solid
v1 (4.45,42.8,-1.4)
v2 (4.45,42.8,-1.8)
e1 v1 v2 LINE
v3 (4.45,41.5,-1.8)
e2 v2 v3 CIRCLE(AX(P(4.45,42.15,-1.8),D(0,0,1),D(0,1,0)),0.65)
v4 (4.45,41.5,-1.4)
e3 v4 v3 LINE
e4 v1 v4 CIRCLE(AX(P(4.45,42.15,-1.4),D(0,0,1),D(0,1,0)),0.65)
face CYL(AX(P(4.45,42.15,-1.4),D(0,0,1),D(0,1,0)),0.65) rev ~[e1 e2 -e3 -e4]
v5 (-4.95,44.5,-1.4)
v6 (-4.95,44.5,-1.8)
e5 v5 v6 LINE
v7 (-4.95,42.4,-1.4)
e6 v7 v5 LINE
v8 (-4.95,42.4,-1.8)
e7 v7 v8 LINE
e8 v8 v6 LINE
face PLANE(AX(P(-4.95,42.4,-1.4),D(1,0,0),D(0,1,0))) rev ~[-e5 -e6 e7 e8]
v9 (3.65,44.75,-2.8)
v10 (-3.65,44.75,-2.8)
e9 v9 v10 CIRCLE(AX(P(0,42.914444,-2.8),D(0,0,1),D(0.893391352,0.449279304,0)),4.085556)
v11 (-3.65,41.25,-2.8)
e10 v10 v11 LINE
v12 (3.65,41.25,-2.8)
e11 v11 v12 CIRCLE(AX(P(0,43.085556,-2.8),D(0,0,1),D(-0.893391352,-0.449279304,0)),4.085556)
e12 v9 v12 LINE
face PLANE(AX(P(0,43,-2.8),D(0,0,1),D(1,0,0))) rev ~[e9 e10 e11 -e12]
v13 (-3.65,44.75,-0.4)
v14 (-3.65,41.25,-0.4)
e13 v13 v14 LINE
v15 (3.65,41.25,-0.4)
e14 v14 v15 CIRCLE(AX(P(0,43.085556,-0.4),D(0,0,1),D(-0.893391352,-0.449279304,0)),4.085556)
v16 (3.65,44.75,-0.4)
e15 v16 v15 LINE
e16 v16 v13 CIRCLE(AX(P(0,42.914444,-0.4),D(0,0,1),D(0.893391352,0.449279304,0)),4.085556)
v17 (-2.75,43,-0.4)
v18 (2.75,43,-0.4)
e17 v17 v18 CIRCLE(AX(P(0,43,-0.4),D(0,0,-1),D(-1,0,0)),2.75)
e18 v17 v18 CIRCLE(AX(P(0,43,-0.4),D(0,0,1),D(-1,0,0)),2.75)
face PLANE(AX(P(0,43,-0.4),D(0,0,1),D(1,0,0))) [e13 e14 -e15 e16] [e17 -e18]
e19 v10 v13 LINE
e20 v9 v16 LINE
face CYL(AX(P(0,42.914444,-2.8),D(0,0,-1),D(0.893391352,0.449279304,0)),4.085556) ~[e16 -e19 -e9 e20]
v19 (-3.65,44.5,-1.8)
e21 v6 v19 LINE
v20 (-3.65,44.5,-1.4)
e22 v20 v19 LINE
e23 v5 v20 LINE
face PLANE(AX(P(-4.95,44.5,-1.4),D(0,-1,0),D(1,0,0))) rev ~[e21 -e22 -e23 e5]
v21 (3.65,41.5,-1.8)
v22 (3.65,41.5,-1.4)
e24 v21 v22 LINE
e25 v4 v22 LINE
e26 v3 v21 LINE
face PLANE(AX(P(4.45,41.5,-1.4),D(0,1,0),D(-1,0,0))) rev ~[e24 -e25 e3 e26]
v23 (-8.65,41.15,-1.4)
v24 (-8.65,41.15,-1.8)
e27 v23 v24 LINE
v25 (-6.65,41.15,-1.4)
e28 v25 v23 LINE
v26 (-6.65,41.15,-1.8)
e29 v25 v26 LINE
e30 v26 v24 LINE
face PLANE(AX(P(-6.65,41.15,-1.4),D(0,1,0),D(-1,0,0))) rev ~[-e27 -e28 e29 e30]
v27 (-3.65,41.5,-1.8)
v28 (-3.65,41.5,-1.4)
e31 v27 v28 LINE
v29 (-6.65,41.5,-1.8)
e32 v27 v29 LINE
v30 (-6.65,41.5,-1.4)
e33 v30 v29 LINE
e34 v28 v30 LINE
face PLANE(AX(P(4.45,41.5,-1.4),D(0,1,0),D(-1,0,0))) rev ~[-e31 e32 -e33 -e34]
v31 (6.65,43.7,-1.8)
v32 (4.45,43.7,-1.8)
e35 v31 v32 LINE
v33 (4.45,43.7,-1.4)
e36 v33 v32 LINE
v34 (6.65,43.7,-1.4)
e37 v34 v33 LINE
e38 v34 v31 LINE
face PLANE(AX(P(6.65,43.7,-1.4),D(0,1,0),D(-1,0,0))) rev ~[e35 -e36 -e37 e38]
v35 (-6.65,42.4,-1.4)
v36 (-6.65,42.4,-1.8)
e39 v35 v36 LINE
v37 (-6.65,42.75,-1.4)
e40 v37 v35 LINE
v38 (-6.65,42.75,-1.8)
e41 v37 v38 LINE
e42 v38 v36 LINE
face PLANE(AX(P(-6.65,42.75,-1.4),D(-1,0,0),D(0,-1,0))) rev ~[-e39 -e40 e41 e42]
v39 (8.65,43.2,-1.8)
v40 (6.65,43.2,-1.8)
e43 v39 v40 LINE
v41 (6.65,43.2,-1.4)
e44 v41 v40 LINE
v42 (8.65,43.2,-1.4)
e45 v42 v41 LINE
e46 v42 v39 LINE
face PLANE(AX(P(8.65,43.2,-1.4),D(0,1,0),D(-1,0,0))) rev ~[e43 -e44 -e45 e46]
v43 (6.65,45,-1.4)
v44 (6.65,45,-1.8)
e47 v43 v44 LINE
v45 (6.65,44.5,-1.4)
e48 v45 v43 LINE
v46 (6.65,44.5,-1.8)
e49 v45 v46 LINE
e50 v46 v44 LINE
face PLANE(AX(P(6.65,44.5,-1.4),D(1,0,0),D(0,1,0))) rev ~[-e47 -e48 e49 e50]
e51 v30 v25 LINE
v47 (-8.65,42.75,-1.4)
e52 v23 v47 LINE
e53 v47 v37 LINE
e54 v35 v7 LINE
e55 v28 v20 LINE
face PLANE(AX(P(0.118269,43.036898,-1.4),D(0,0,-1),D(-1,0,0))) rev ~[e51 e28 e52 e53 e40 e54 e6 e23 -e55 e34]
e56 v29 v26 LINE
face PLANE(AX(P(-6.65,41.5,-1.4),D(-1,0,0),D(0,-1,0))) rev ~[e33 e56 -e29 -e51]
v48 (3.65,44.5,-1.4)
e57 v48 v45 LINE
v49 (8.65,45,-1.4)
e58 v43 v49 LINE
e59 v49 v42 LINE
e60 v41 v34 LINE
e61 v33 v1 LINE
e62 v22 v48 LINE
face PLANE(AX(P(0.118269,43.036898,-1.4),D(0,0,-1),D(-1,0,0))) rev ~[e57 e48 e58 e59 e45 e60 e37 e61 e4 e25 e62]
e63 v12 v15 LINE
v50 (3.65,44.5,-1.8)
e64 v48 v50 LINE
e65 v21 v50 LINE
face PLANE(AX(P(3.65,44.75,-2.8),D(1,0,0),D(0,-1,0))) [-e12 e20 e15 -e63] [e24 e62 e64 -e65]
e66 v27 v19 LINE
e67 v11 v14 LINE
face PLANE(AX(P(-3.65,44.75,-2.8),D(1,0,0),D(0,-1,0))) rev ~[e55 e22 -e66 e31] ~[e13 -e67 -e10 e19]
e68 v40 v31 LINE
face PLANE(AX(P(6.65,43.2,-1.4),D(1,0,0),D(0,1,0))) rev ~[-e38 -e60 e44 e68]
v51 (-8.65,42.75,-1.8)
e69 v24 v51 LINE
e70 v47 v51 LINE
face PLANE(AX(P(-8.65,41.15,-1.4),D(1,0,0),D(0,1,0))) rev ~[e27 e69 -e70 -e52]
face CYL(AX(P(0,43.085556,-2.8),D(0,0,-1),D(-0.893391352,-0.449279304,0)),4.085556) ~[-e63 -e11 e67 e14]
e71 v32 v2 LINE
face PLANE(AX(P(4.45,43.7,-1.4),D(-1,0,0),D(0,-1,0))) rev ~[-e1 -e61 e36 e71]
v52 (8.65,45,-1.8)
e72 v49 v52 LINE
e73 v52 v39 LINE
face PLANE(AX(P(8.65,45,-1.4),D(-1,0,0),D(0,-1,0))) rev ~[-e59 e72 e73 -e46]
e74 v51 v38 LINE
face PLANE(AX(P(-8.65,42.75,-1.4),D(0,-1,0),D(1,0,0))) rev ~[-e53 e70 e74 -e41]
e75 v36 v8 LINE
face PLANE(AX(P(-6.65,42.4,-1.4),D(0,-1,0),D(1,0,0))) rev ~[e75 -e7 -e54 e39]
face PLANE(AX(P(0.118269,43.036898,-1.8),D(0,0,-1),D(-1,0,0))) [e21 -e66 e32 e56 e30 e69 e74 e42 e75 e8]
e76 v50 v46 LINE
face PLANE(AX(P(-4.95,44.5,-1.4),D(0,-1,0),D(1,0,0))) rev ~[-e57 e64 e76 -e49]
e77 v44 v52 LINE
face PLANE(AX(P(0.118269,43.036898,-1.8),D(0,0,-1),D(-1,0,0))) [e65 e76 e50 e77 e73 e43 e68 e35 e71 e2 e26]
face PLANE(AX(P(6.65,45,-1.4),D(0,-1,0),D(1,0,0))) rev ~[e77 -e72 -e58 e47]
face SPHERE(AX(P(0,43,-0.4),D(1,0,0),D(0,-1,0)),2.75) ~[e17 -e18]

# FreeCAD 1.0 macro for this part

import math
import FreeCAD as App
import Part
import Sketcher
from FreeCAD import Vector
Q = App.Units.Quantity

doc = App.newDocument("Part")
body = doc.addObject("PartDesign::Body", "Body")

sketch1 = body.newObject("Sketcher::SketchObject", "Sketch")
sketch1.AttachmentSupport = (doc.getObject("XY_Plane"), [""])
sketch1.MapMode = "FlatFace"
sketch1.AttachmentOffset = App.Placement(Vector(0, 0, 2.4), App.Rotation())
sketch1.addGeometry(Part.ArcOfCircle(Part.Circle(Vector(0, 0, 0), Vector(0, 0, 1), 2.8), math.radians(180), math.radians(360)), False)
sketch1.addGeometry(Part.LineSegment(Vector(2.8, 0, 0), Vector(-2.8, 0, 0)), False)
sketch1.addConstraint(Sketcher.Constraint("Coincident", 0, 1, 1, 2))
sketch1.addConstraint(Sketcher.Constraint("Coincident", 1, 1, 0, 2))
sketch1.addConstraint(Sketcher.Constraint("Horizontal", 1))
sketch1.addConstraint(Sketcher.Constraint("Coincident", 0, 3, -1, 1))
sketch1.addConstraint(Sketcher.Constraint("PointOnObject", 0, 1, -1))
sketch1.addConstraint(Sketcher.Constraint("Radius", 0, Q("2.75 mm")))
revolution = body.newObject("PartDesign::Revolution", "Revolution")
revolution.Profile = sketch1
revolution.ReferenceAxis = (sketch1, ["H_Axis"])
revolution.Angle = 180
revolution.Reversed = True
body2 = doc.addObject("PartDesign::Body", "Body001")

sketch2 = body2.newObject("Sketcher::SketchObject", "Sketch001")
sketch2.AttachmentSupport = (doc.getObject("XY_Plane001"), [""])
sketch2.MapMode = "FlatFace"
sketch2.addGeometry(Part.LineSegment(Vector(6.65, -2, 0), Vector(6.65, -1.5, 0)), False)
sketch2.addGeometry(Part.LineSegment(Vector(6.65, -1.5, 0), Vector(-4.95, -1.5, 0)), False)
sketch2.addGeometry(Part.LineSegment(Vector(-4.95, -1.5, 0), Vector(-4.95, 0.6, 0)), False)
sketch2.addGeometry(Part.LineSegment(Vector(-4.95, 0.6, 0), Vector(-6.65, 0.6, 0)), False)
sketch2.addGeometry(Part.LineSegment(Vector(-6.65, 0.6, 0), Vector(-6.65, 0.25, 0)), False)
sketch2.addGeometry(Part.LineSegment(Vector(-6.65, 0.25, 0), Vector(-8.65, 0.25, 0)), False)
sketch2.addGeometry(Part.LineSegment(Vector(-8.65, 0.25, 0), Vector(-8.65, 1.85, 0)), False)
sketch2.addGeometry(Part.LineSegment(Vector(-8.65, 1.85, 0), Vector(-6.65, 1.85, 0)), False)
sketch2.addGeometry(Part.LineSegment(Vector(-6.65, 1.85, 0), Vector(-6.65, 1.5, 0)), False)
sketch2.addGeometry(Part.LineSegment(Vector(-6.65, 1.5, 0), Vector(4.45, 1.5, 0)), False)
sketch2.addGeometry(Part.ArcOfCircle(Part.Circle(Vector(4.45, 0.85, 0), Vector(0, 0, 1), 0.65), math.radians(90), math.radians(270)), False)
sketch2.addGeometry(Part.LineSegment(Vector(4.45, 0.2, 0), Vector(4.45, -0.7, 0)), False)
sketch2.addGeometry(Part.LineSegment(Vector(4.45, -0.7, 0), Vector(6.65, -0.7, 0)), False)
sketch2.addGeometry(Part.LineSegment(Vector(6.65, -0.7, 0), Vector(6.65, -0.2, 0)), False)
sketch2.addGeometry(Part.LineSegment(Vector(6.65, -0.2, 0), Vector(8.65, -0.2, 0)), False)
sketch2.addGeometry(Part.LineSegment(Vector(8.65, -0.2, 0), Vector(8.65, -2, 0)), False)
sketch2.addGeometry(Part.LineSegment(Vector(8.65, -2, 0), Vector(6.65, -2, 0)), False)
sketch2.addConstraint(Sketcher.Constraint("Coincident", 0, 2, 1, 1))
sketch2.addConstraint(Sketcher.Constraint("Coincident", 1, 2, 2, 1))
sketch2.addConstraint(Sketcher.Constraint("Coincident", 2, 2, 3, 1))
sketch2.addConstraint(Sketcher.Constraint("Coincident", 3, 2, 4, 1))
sketch2.addConstraint(Sketcher.Constraint("Coincident", 4, 2, 5, 1))
sketch2.addConstraint(Sketcher.Constraint("Coincident", 5, 2, 6, 1))
sketch2.addConstraint(Sketcher.Constraint("Coincident", 6, 2, 7, 1))
sketch2.addConstraint(Sketcher.Constraint("Coincident", 7, 2, 8, 1))
sketch2.addConstraint(Sketcher.Constraint("Coincident", 8, 2, 9, 1))
sketch2.addConstraint(Sketcher.Constraint("Tangent", 9, 2, 10, 1))
sketch2.addConstraint(Sketcher.Constraint("Coincident", 10, 2, 11, 1))
sketch2.addConstraint(Sketcher.Constraint("Coincident", 11, 2, 12, 1))
sketch2.addConstraint(Sketcher.Constraint("Coincident", 12, 2, 13, 1))
sketch2.addConstraint(Sketcher.Constraint("Coincident", 13, 2, 14, 1))
sketch2.addConstraint(Sketcher.Constraint("Coincident", 14, 2, 15, 1))
sketch2.addConstraint(Sketcher.Constraint("Coincident", 15, 2, 16, 1))
sketch2.addConstraint(Sketcher.Constraint("Coincident", 16, 2, 0, 1))
sketch2.addConstraint(Sketcher.Constraint("Vertical", 0))
sketch2.addConstraint(Sketcher.Constraint("Horizontal", 1))
sketch2.addConstraint(Sketcher.Constraint("Vertical", 2))
sketch2.addConstraint(Sketcher.Constraint("Horizontal", 3))
sketch2.addConstraint(Sketcher.Constraint("Vertical", 4))
sketch2.addConstraint(Sketcher.Constraint("Horizontal", 5))
sketch2.addConstraint(Sketcher.Constraint("Vertical", 6))
sketch2.addConstraint(Sketcher.Constraint("Horizontal", 7))
sketch2.addConstraint(Sketcher.Constraint("Vertical", 8))
sketch2.addConstraint(Sketcher.Constraint("Horizontal", 9))
sketch2.addConstraint(Sketcher.Constraint("Vertical", 11))
sketch2.addConstraint(Sketcher.Constraint("Horizontal", 12))
sketch2.addConstraint(Sketcher.Constraint("Vertical", 13))
sketch2.addConstraint(Sketcher.Constraint("Horizontal", 14))
sketch2.addConstraint(Sketcher.Constraint("Vertical", 15))
sketch2.addConstraint(Sketcher.Constraint("Horizontal", 16))
sketch2.addConstraint(Sketcher.Constraint("Symmetric", 0, 2, 8, 2, -1, 1))
sketch2.addConstraint(Sketcher.Constraint("Vertical", 4, 2, 7, 2))
sketch2.addConstraint(Sketcher.Constraint("Vertical", 9, 2, 10, 2))
sketch2.addConstraint(Sketcher.Constraint("Vertical", 0, 2, 12, 2))
sketch2.addConstraint(Sketcher.Constraint("Equal", 7, 14))
sketch2.addConstraint(Sketcher.Constraint("Equal", 4, 8))
sketch2.addConstraint(Sketcher.Constraint("Equal", 0, 13))
sketch2.addConstraint(Sketcher.Constraint("DistanceX", 5, 2, 5, 1, Q("2 mm")))
sketch2.addConstraint(Sketcher.Constraint("Radius", 10, Q("0.65 mm")))
sketch2.addConstraint(Sketcher.Constraint("DistanceX", 1, 2, 1, 1, Q("11.6 mm")))
sketch2.addConstraint(Sketcher.Constraint("DistanceX", 3, 2, 3, 1, Q("1.7 mm")))
sketch2.addConstraint(Sketcher.Constraint("DistanceX", 9, 1, 9, 2, Q("11.1 mm")))
sketch2.addConstraint(Sketcher.Constraint("DistanceY", 0, 1, 0, 2, Q("0.5 mm")))
sketch2.addConstraint(Sketcher.Constraint("DistanceY", 2, 1, 2, 2, Q("2.1 mm")))
sketch2.addConstraint(Sketcher.Constraint("DistanceY", 6, 1, 6, 2, Q("1.6 mm")))
sketch2.addConstraint(Sketcher.Constraint("DistanceY", 11, 2, 11, 1, Q("0.9 mm")))
sketch2.addConstraint(Sketcher.Constraint("DistanceY", 15, 2, 15, 1, Q("1.8 mm")))
pad1 = body2.newObject("PartDesign::Pad", "Pad")
pad1.Profile = sketch2
pad1.Length = 0.4
body3 = doc.addObject("PartDesign::Body", "Body002")
doc.recompute()

body2.Placement = App.Placement(Vector(0, 0, 1.4), App.Rotation(Vector(1, 0, 0), 180))
boolean = body3.newObject("PartDesign::Boolean", "Boolean")
boolean.Type = "Fuse"
boolean.addObjects([body2])
body4 = doc.addObject("PartDesign::Body", "Body003")

sketch3 = body4.newObject("Sketcher::SketchObject", "Sketch002")
sketch3.AttachmentSupport = (doc.getObject("XY_Plane003"), [""])
sketch3.MapMode = "FlatFace"
sketch3.addGeometry(Part.LineSegment(Vector(-3.6, 1.8, 0), Vector(-3.6, -1.8, 0)), False)
sketch3.addGeometry(Part.ArcOfCircle(Part.Circle(Vector(0, 0.1, 0), Vector(0, 0, 1), 4.1), math.radians(-153), math.radians(-27)), False)
sketch3.addGeometry(Part.LineSegment(Vector(3.6, -1.8, 0), Vector(3.6, 1.8, 0)), False)
sketch3.addGeometry(Part.ArcOfCircle(Part.Circle(Vector(0, -0.1, 0), Vector(0, 0, 1), 4.1), math.radians(27), math.radians(153)), False)
sketch3.addConstraint(Sketcher.Constraint("Coincident", 0, 2, 1, 1))
sketch3.addConstraint(Sketcher.Constraint("Coincident", 1, 2, 2, 1))
sketch3.addConstraint(Sketcher.Constraint("Coincident", 2, 2, 3, 1))
sketch3.addConstraint(Sketcher.Constraint("Coincident", 3, 2, 0, 1))
sketch3.addConstraint(Sketcher.Constraint("Vertical", 0))
sketch3.addConstraint(Sketcher.Constraint("Vertical", 2))
sketch3.addConstraint(Sketcher.Constraint("Equal", 1, 3))
sketch3.addConstraint(Sketcher.Constraint("Symmetric", 1, 3, 3, 3, -1, 1))
sketch3.addConstraint(Sketcher.Constraint("Symmetric", 0, 2, 1, 2, -2))
sketch3.addConstraint(Sketcher.Constraint("DistanceY", 0, 2, 0, 1, Q("3.5 mm")))
sketch3.addConstraint(Sketcher.Constraint("DistanceX", 0, 2, 1, 2, Q("7.3 mm")))
sketch3.addConstraint(Sketcher.Constraint("Radius", 1, Q("4.085556 mm")))
pad2 = body4.newObject("PartDesign::Pad", "Pad001")
pad2.Profile = sketch3
pad2.Length = 2.4
doc.recompute()

boolean2 = body4.newObject("PartDesign::Boolean", "Boolean001")
boolean2.Type = "Fuse"
boolean2.addObjects([body])
doc.recompute()

boolean3 = body4.newObject("PartDesign::Boolean", "Boolean002")
boolean3.Type = "Fuse"
boolean3.addObjects([body3])
body5 = doc.addObject("PartDesign::Body", "Body004")
doc.recompute()

body4.Placement = App.Placement(Vector(0, 43, -2.8), App.Rotation(Vector(0, 0, 1), 0))
boolean4 = body5.newObject("PartDesign::Boolean", "Boolean003")
boolean4.Type = "Fuse"
boolean4.addObjects([body4])

doc.recompute()
